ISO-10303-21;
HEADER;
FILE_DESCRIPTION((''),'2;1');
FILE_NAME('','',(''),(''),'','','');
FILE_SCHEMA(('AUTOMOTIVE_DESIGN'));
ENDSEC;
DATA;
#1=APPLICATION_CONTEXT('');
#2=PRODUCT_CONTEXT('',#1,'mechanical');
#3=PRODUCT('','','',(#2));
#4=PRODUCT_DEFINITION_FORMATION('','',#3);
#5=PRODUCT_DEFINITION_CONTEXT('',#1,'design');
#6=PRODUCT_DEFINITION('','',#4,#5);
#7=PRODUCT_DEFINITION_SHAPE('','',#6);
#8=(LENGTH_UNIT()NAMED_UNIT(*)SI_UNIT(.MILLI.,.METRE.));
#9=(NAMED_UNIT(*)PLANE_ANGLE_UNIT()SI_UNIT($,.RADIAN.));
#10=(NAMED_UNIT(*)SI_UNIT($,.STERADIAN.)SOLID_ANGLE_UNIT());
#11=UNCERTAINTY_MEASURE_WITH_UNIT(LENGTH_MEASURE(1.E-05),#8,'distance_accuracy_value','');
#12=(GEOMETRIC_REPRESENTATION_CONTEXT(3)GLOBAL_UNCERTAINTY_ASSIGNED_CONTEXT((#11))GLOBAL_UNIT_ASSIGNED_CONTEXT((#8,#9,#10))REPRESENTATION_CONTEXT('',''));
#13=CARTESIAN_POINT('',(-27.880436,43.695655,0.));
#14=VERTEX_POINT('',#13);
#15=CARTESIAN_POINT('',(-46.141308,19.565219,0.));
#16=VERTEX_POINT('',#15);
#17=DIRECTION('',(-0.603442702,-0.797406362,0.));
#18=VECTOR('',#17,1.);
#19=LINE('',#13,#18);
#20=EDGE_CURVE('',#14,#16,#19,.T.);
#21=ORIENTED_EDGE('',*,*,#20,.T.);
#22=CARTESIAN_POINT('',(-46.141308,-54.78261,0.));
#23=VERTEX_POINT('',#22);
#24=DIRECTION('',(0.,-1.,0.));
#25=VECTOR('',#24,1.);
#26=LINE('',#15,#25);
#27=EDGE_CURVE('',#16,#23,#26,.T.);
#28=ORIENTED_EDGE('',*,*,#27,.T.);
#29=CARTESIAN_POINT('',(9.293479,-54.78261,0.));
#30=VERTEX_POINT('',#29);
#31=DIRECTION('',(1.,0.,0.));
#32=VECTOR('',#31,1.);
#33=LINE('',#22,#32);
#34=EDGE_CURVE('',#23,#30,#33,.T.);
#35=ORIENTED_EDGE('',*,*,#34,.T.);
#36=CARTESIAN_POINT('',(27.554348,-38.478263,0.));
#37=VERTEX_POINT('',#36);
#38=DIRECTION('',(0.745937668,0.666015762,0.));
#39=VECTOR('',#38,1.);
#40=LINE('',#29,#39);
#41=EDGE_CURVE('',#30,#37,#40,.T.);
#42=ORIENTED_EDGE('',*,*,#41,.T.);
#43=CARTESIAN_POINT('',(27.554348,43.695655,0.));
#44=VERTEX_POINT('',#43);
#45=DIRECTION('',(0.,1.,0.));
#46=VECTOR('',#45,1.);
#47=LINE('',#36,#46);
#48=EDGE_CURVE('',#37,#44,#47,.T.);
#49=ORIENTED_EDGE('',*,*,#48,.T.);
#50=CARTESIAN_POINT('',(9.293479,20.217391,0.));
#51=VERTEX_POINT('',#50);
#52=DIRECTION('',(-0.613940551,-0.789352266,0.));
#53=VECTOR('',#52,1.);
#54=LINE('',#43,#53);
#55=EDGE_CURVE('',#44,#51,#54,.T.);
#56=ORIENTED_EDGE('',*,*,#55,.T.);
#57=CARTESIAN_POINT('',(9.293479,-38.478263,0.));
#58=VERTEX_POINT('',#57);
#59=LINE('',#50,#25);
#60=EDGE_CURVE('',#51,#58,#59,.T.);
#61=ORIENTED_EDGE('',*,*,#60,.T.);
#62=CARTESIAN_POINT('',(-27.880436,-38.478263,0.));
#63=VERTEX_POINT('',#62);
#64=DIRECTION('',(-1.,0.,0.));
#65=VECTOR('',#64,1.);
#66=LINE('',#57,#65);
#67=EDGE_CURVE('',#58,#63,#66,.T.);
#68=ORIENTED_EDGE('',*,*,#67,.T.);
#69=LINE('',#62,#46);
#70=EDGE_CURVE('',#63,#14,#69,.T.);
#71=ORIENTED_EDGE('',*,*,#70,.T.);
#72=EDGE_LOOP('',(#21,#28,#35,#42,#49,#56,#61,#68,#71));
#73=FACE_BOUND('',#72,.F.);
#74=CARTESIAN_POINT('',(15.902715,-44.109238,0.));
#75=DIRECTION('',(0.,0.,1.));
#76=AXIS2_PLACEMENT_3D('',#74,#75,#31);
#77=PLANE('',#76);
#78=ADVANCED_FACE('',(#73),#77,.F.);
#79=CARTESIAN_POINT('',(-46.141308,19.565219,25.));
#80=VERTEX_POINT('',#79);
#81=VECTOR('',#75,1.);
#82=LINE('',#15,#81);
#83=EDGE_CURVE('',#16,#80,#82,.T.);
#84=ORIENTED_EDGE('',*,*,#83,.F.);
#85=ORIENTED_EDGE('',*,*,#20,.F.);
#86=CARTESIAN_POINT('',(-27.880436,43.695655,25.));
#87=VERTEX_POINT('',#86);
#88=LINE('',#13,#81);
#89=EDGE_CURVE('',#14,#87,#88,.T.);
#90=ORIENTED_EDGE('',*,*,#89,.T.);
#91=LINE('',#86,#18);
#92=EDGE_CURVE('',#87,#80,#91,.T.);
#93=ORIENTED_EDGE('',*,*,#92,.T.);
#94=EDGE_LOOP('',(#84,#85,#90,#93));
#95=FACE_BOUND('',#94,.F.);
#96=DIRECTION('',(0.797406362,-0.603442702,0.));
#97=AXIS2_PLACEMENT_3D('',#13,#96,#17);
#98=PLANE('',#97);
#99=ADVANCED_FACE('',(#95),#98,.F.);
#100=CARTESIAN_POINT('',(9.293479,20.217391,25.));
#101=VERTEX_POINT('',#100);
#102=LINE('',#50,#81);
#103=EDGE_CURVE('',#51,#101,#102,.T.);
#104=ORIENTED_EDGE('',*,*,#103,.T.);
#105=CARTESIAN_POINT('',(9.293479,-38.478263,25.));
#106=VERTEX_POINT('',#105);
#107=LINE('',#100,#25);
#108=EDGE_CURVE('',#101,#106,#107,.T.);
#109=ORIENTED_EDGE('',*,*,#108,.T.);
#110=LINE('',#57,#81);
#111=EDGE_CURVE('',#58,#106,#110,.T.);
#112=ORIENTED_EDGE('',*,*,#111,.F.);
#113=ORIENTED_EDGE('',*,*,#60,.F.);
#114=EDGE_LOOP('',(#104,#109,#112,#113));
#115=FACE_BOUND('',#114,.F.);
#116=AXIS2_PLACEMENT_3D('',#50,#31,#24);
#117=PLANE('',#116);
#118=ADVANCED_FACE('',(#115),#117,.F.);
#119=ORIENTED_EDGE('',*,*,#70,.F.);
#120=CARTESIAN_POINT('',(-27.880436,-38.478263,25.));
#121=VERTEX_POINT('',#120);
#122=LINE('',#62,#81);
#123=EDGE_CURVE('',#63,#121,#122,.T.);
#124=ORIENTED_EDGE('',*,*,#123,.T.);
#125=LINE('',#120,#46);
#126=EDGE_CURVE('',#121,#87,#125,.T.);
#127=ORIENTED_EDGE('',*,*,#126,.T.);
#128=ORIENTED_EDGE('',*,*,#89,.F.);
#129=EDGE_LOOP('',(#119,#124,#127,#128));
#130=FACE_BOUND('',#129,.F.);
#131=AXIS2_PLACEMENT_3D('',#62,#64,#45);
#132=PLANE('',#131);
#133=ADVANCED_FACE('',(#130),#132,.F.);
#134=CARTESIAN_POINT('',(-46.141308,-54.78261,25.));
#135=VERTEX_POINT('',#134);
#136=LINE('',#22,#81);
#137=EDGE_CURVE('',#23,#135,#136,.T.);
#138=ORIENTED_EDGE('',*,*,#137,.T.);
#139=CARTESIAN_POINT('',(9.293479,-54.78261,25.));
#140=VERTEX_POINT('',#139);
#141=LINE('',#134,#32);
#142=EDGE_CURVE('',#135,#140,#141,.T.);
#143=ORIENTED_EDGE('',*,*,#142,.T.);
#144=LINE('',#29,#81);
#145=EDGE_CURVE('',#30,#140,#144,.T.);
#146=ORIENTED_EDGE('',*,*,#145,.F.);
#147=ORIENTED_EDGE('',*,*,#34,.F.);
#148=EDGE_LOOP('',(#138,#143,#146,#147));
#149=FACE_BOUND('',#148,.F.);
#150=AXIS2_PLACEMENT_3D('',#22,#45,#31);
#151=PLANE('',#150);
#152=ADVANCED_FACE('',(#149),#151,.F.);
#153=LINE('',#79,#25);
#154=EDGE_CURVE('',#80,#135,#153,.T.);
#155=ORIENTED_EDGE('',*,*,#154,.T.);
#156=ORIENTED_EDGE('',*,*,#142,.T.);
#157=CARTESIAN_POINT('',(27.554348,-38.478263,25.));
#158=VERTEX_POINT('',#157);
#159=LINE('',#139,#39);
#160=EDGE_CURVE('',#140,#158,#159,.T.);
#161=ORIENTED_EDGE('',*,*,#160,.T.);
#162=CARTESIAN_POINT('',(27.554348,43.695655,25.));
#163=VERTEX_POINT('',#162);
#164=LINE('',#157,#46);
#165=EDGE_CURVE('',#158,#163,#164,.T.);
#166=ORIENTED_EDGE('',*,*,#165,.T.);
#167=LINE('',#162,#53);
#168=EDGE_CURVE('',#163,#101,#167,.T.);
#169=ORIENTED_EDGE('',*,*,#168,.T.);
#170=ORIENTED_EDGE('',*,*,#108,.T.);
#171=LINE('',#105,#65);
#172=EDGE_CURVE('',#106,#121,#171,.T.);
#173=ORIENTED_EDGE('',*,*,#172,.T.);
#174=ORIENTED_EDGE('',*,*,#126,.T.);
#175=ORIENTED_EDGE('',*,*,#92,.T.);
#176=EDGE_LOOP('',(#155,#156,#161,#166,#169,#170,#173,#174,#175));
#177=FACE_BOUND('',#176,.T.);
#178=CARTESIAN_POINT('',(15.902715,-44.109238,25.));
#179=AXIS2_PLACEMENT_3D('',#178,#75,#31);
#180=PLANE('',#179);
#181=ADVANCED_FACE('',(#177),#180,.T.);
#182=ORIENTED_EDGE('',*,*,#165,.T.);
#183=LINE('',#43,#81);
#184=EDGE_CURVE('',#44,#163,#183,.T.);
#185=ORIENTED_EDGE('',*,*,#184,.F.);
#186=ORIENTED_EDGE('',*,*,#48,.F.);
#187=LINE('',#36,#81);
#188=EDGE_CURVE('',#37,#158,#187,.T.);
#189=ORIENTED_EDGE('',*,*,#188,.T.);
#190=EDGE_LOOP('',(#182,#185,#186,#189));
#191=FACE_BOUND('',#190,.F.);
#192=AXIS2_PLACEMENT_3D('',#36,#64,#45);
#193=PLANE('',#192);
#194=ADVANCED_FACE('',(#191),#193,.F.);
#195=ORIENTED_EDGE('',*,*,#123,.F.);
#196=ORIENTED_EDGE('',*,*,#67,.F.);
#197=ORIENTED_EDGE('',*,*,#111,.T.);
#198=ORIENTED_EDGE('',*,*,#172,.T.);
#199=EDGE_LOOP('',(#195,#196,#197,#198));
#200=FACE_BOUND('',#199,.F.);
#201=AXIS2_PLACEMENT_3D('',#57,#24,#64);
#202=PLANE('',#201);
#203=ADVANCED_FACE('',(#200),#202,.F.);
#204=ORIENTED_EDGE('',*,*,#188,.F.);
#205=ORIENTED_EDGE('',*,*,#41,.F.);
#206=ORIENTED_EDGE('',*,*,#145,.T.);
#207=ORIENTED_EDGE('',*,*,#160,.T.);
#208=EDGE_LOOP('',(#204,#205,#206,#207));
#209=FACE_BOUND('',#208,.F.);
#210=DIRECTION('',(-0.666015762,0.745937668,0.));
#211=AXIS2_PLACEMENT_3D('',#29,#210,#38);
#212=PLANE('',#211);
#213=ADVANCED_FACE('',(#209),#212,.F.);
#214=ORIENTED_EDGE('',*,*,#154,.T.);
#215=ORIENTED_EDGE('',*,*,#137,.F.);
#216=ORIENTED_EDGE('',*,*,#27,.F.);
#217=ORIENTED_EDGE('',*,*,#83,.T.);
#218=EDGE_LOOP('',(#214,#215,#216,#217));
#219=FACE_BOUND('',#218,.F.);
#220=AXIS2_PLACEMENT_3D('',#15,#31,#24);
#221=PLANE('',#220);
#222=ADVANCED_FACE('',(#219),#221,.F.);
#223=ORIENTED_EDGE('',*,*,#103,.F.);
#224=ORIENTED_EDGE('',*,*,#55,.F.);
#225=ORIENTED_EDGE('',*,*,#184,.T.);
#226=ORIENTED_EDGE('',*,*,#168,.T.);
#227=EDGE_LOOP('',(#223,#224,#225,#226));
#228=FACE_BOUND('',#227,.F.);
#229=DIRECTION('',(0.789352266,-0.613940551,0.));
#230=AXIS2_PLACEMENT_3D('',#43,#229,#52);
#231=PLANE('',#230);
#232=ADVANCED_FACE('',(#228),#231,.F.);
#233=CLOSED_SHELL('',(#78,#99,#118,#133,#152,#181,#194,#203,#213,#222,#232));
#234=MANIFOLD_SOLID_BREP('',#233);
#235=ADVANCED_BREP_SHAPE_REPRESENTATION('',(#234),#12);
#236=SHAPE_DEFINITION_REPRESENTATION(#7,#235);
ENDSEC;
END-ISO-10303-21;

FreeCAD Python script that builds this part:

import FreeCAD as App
import Part
import Sketcher
from FreeCAD import Vector


def add_polygon(sketch, points):
    """Adds a closed chain of lines whose ends are joined by coincident constraints."""
    first, n = sketch.GeometryCount, len(points)
    for a, b in zip(points, points[1:] + points[:1]):
        sketch.addGeometry(Part.LineSegment(App.Vector(*a, 0), App.Vector(*b, 0)), False)
    for i in range(n):
        sketch.addConstraint(Sketcher.Constraint("Coincident", first + i, 2, first + (i + 1) % n, 1))

doc = App.newDocument("Part")
body = doc.addObject("PartDesign::Body", "Body")

# Sketch on XY plane
sketch1 = body.newObject("Sketcher::SketchObject", "Sketch")
sketch1.AttachmentSupport = (doc.getObject("XY_Plane"), [""])
sketch1.MapMode = "FlatFace"
add_polygon(sketch1, [(9, -55), (28, -38), (28, 44), (9, 20), (9, -38), (-28, -38), (-28, 44), (-46, 20), (-46, -55)])  # lines 0-8
sketch1.addConstraint(Sketcher.Constraint("Vertical", 1))
sketch1.addConstraint(Sketcher.Constraint("Vertical", 3))
sketch1.addConstraint(Sketcher.Constraint("Horizontal", 4))
sketch1.addConstraint(Sketcher.Constraint("Vertical", 5))
sketch1.addConstraint(Sketcher.Constraint("Vertical", 7))
sketch1.addConstraint(Sketcher.Constraint("Horizontal", 8))
sketch1.addConstraint(Sketcher.Constraint("Horizontal", 0, 2, 3, 2))
sketch1.addConstraint(Sketcher.Constraint("Horizontal", 1, 2, 5, 2))
sketch1.addConstraint(Sketcher.Constraint("Vertical", 3, 2, 8, 2))
sketch1.addConstraint(Sketcher.Constraint("DistanceY", 7, 2, 2, 2, 75.000001))
sketch1.addConstraint(Sketcher.Constraint("DistanceY", 1, 1, 1, 2, 82.173918))
sketch1.addConstraint(Sketcher.Constraint("DistanceY", 7, 2, 7, 1, 74.347829))
sketch1.addConstraint(Sketcher.Constraint("Distance", 2, 29.743709))
sketch1.addConstraint(Sketcher.Constraint("DistanceX", 4, 2, 4, 1, 37.173915))
sketch1.addConstraint(Sketcher.Constraint("DistanceX", 8, 1, 8, 2, 55.434787))
sketch1.addConstraint(Sketcher.Constraint("DistanceY", 3, 2, 3, 1, 58.695654))
sketch1.addConstraint(Sketcher.Constraint("DistanceX", -1, 1, 0, 2, 27.554348))
sketch1.addConstraint(Sketcher.Constraint("DistanceY", -1, 1, 2, 2, 20.217391))
pad1 = body.newObject("PartDesign::Pad", "Pad")
pad1.Profile = sketch1
pad1.Length = 25

doc.recompute()
